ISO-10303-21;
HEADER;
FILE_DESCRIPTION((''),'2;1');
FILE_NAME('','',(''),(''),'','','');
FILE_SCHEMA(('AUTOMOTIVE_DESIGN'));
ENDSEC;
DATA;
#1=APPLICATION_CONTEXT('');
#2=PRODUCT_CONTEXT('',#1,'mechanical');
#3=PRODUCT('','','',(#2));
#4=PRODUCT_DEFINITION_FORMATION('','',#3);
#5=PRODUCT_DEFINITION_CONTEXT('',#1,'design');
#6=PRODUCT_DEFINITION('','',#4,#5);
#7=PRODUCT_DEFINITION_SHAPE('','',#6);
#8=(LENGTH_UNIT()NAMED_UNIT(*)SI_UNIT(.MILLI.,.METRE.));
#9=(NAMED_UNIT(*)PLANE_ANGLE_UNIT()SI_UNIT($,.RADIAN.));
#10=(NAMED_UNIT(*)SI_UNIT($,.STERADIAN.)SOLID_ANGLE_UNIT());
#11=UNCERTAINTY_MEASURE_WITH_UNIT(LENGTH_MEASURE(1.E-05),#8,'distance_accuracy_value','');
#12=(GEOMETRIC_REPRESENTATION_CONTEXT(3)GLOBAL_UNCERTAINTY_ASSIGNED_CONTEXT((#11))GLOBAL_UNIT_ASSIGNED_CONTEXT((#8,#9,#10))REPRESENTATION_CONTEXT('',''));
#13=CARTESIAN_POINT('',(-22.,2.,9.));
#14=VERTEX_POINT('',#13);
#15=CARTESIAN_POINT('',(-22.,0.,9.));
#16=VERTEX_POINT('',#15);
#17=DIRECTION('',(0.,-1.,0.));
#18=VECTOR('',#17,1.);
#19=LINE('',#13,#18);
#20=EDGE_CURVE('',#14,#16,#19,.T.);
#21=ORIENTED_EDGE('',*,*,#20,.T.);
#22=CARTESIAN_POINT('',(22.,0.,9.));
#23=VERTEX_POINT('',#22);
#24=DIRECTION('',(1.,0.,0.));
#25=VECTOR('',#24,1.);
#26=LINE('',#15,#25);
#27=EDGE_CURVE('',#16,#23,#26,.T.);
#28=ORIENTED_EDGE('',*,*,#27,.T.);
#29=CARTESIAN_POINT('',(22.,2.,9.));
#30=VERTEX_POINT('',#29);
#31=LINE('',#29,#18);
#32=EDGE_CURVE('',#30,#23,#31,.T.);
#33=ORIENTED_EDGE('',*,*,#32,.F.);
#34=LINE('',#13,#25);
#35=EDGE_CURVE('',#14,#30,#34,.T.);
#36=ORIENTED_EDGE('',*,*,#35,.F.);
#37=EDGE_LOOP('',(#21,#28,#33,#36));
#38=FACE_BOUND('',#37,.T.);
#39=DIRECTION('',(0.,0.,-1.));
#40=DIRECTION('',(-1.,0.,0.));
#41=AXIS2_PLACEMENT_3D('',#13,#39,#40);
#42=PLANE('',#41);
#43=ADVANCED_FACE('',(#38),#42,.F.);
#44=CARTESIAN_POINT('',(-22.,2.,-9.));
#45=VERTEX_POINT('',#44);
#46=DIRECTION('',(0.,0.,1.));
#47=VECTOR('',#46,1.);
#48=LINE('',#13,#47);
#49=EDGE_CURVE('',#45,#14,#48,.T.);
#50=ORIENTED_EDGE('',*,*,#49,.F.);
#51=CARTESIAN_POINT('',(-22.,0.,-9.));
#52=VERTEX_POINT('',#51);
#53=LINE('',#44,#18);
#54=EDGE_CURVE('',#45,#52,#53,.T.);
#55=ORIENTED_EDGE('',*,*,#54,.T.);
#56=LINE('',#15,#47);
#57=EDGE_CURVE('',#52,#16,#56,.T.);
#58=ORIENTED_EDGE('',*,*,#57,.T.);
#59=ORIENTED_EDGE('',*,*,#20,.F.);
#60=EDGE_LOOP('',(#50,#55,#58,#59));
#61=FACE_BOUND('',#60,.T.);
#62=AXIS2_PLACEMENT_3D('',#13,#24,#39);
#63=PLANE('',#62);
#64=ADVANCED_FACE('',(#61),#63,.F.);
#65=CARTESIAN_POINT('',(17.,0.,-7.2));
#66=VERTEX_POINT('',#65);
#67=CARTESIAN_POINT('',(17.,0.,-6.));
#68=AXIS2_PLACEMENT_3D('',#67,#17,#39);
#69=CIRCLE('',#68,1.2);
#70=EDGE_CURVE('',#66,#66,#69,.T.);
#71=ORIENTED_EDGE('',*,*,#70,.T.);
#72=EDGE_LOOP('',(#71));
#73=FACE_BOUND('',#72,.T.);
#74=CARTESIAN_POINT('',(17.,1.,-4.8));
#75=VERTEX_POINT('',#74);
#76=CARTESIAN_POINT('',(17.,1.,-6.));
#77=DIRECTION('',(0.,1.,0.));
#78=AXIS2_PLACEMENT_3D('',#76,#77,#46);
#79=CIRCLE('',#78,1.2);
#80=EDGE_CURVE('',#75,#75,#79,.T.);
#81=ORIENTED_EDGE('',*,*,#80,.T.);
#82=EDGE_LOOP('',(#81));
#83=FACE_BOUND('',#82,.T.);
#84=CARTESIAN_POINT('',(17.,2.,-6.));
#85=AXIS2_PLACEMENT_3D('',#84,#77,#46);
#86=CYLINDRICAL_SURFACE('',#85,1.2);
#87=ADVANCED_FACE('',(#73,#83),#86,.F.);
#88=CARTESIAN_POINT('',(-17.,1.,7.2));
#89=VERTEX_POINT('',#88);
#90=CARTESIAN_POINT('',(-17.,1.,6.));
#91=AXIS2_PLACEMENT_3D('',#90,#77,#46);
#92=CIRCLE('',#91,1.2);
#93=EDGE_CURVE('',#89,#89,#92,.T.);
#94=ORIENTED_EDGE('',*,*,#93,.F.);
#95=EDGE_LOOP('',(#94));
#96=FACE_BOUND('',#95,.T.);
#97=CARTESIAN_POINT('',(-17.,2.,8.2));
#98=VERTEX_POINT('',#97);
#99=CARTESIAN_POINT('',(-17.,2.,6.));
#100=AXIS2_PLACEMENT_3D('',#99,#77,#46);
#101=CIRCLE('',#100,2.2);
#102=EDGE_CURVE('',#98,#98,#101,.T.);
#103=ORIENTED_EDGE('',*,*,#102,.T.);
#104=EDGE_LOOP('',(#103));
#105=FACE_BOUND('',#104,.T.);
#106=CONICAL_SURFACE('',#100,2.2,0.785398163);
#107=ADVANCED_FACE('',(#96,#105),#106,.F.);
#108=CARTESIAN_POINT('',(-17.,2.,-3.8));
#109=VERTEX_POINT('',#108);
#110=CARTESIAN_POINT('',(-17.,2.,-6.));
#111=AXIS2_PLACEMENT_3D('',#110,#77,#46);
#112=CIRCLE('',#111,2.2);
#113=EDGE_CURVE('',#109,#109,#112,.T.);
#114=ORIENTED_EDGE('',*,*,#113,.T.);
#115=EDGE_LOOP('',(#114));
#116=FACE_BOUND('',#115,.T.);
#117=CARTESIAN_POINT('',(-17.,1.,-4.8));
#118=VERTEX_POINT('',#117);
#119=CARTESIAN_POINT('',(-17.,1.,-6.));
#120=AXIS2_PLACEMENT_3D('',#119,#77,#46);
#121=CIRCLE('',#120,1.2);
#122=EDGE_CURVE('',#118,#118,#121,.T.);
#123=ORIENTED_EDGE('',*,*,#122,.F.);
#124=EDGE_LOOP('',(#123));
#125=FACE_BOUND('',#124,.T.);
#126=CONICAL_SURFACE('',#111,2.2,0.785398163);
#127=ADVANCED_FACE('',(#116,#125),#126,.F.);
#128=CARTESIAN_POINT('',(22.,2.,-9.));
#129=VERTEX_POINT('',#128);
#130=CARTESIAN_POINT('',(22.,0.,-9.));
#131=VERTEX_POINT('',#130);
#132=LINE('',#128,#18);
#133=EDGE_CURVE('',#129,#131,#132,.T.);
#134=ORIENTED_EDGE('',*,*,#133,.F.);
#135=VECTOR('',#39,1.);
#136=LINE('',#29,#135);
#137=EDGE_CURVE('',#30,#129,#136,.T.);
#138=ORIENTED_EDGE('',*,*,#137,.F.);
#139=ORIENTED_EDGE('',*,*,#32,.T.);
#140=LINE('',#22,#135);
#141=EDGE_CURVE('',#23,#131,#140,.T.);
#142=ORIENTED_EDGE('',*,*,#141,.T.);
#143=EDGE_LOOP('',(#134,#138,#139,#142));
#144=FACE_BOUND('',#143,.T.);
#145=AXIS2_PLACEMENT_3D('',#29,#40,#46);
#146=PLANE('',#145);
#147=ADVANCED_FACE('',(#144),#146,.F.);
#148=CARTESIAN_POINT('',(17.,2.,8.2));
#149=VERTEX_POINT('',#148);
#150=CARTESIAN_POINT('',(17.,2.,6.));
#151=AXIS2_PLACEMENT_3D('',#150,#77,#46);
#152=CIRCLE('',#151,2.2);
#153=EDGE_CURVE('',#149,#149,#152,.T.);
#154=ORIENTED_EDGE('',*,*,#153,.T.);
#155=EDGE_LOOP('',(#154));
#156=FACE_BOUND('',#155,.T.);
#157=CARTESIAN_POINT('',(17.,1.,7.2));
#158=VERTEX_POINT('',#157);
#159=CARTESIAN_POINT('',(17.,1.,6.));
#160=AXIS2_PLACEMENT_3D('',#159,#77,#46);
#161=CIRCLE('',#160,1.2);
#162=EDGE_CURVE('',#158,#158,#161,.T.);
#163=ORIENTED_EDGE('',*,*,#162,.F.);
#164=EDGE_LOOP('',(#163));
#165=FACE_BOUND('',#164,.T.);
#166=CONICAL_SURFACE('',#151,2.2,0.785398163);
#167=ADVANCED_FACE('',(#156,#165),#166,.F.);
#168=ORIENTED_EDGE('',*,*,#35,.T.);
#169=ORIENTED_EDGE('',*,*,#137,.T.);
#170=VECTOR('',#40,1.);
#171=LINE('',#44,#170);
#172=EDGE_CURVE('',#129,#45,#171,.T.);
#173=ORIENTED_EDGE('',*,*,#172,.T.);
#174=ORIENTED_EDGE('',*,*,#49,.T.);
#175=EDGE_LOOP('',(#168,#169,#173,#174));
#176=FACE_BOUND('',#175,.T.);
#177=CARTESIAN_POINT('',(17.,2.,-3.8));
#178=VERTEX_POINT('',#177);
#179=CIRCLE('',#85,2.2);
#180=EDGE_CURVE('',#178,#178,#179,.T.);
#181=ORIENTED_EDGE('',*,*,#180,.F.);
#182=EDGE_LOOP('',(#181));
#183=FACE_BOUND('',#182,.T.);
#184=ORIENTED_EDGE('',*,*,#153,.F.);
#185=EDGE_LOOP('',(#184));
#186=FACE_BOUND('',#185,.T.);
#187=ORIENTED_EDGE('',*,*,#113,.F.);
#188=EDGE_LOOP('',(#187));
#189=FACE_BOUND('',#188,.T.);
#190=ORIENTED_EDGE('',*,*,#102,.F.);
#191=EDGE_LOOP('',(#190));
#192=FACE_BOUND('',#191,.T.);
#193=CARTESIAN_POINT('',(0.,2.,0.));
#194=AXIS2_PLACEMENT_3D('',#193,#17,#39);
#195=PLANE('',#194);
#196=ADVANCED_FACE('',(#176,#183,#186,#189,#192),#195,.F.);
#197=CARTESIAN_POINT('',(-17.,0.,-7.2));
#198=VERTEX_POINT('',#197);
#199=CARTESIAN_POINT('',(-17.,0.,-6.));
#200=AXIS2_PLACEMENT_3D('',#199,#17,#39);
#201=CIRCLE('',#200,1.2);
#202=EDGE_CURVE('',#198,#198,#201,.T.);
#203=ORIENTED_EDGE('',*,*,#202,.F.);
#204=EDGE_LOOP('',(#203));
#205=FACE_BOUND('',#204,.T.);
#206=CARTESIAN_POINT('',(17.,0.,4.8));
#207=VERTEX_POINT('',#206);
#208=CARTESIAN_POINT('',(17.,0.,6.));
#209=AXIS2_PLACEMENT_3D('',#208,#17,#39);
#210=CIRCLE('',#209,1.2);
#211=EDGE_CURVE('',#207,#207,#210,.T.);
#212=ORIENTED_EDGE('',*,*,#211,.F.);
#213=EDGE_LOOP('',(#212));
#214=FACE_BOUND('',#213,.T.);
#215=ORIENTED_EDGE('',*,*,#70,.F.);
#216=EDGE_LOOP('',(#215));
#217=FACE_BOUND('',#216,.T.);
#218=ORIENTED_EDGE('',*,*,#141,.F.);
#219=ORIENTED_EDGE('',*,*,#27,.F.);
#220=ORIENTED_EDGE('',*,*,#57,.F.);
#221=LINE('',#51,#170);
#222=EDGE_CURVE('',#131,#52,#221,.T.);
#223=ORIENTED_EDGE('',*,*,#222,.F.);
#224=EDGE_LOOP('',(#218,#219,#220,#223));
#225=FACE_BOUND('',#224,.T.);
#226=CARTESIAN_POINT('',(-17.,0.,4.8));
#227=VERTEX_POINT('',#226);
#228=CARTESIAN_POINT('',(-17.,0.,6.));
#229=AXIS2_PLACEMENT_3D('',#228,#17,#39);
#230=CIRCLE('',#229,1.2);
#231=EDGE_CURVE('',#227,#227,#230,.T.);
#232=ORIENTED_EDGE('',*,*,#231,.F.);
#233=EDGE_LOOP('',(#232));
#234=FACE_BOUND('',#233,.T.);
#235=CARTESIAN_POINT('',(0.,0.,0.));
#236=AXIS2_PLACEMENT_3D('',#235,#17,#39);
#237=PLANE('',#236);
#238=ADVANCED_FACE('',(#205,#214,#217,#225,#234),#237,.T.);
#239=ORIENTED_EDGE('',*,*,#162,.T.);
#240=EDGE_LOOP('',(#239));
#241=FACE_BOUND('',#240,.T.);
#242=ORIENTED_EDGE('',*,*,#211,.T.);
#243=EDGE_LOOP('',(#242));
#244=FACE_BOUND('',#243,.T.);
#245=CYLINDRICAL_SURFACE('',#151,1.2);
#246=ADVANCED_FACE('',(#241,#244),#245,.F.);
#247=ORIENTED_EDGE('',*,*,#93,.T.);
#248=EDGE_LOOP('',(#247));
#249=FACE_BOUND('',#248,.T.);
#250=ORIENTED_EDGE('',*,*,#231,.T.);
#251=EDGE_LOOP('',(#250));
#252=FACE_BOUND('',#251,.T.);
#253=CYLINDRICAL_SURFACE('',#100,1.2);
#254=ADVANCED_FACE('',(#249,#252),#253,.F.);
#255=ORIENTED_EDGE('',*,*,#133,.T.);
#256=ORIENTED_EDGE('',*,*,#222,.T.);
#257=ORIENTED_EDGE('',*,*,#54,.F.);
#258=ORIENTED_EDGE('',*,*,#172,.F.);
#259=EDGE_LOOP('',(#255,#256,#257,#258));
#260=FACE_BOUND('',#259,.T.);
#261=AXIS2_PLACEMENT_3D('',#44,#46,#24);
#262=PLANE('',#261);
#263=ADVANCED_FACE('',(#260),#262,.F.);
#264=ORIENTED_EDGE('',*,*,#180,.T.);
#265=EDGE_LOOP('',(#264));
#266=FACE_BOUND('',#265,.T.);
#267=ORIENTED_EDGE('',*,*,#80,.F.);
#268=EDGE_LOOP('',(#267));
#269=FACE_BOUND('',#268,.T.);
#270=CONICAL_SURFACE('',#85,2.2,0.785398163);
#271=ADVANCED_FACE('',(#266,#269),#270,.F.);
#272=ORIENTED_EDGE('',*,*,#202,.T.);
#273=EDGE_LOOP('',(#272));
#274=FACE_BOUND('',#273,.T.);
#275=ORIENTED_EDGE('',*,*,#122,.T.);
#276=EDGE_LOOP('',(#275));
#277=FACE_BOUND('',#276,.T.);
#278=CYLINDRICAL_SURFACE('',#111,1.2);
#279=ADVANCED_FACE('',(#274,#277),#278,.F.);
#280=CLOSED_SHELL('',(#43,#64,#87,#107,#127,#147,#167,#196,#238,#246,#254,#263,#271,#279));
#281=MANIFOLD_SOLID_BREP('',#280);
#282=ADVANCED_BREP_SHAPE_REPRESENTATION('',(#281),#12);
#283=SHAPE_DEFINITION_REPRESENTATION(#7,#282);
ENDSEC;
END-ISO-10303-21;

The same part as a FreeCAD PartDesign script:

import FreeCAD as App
import Part
import Sketcher
from FreeCAD import Vector
Q = App.Units.Quantity

doc = App.newDocument("Part")
params = doc.addObject("Spreadsheet::Sheet", "Params")
for row, (alias, value) in enumerate([
    ("sketch1_width", "44 mm"),
    ("sketch1_height", "18 mm"),
    ("pad1_length", "2 mm"),
    ("sketch2_diameter", "2.4 mm"),
    ("hole_diameter", "2.4 mm"),
    ("hole_depth", "10 mm"),
    ("hole_csink_diameter", "4.4 mm"),
], start=1):
    params.set(f"A{row}", alias)
    params.set(f"B{row}", "=" + value)
    params.setAlias(f"B{row}", alias)

body = doc.addObject("PartDesign::Body", "Body")

# Sketch on XZ plane
sketch1 = body.newObject("Sketcher::SketchObject", "Sketch")
sketch1.AttachmentSupport = (doc.getObject("XZ_Plane"), [""])
sketch1.MapMode = "FlatFace"
sketch1.addGeometry([
    Part.LineSegment(Vector(-22, -9, 0), Vector(-22, 9, 0)),
    Part.LineSegment(Vector(-22, 9, 0), Vector(22, 9, 0)),
    Part.LineSegment(Vector(22, 9, 0), Vector(22, -9, 0)),
    Part.LineSegment(Vector(22, -9, 0), Vector(-22, -9, 0)),
], False)
sketch1.addConstraint([
    Sketcher.Constraint("Coincident", 0, 2, 1, 1),
    Sketcher.Constraint("Coincident", 1, 2, 2, 1),
    Sketcher.Constraint("Coincident", 2, 2, 3, 1),
    Sketcher.Constraint("Coincident", 3, 2, 0, 1),
    Sketcher.Constraint("Vertical", 0),
    Sketcher.Constraint("Horizontal", 1),
    Sketcher.Constraint("Vertical", 2),
    Sketcher.Constraint("Horizontal", 3),
    Sketcher.Constraint("Symmetric", 0, 2, 2, 2, -1, 1),
    Sketcher.Constraint("DistanceX", 1, 1, 1, 2, Q("44 mm")),
    Sketcher.Constraint("DistanceY", 0, 1, 0, 2, Q("18 mm")),
])
sketch1.setExpression("Constraints[9]", "Params.sketch1_width")
sketch1.setExpression("Constraints[10]", "Params.sketch1_height")
pad1 = body.newObject("PartDesign::Pad", "Pad")
pad1.Profile = sketch1
pad1.setExpression("Length", "Params.pad1_length")
pad1.Reversed = True

# Sketch on XZ plane
sketch2 = body.newObject("Sketcher::SketchObject", "Sketch001")
sketch2.AttachmentSupport = (doc.getObject("XZ_Plane"), [""])
sketch2.MapMode = "FlatFace"
sketch2.AttachmentOffset = App.Placement(Vector(0, 0, -2), App.Rotation())
sketch2.addGeometry([
    Part.Circle(Vector(-17, -6, 0), Vector(0, 0, 1), 1.2),
    Part.Circle(Vector(17, -6, 0), Vector(0, 0, 1), 1.2),
    Part.Circle(Vector(-17, 6, 0), Vector(0, 0, 1), 1.2),
    Part.Circle(Vector(17, 6, 0), Vector(0, 0, 1), 1.2),
], False)
sketch2.addConstraint([
    Sketcher.Constraint("Equal", 0, 1),
    Sketcher.Constraint("Equal", 1, 2),
    Sketcher.Constraint("Equal", 2, 3),
    Sketcher.Constraint("Symmetric", 1, 3, 2, 3, -1, 1),
    Sketcher.Constraint("Symmetric", 0, 3, 3, 3, -1, 1),
    Sketcher.Constraint("Symmetric", 0, 3, 1, 3, -2),
    Sketcher.Constraint("Diameter", 0, Q("2.4 mm")),
    Sketcher.Constraint("DistanceX", 0, 3, -1, 1, Q("17 mm")),
    Sketcher.Constraint("DistanceY", 0, 3, -1, 1, Q("6 mm")),
])
sketch2.setExpression("Constraints[6]", "Params.sketch2_diameter")
doc.recompute()
hole = body.newObject("PartDesign::Hole", "Hole")
hole.Profile = sketch2
hole.ThreadType = "None"
hole.setExpression("Diameter", "Params.hole_diameter")
hole.DepthType = "Dimension"
hole.setExpression("Depth", "Params.hole_depth")
hole.DrillPoint = "Angled"
hole.DrillPointAngle = 118
hole.HoleCutType = "Countersink"
hole.setExpression("HoleCutDiameter", "Params.hole_csink_diameter")
hole.HoleCutCountersinkAngle = 90
hole.Reversed = True

doc.recompute()
